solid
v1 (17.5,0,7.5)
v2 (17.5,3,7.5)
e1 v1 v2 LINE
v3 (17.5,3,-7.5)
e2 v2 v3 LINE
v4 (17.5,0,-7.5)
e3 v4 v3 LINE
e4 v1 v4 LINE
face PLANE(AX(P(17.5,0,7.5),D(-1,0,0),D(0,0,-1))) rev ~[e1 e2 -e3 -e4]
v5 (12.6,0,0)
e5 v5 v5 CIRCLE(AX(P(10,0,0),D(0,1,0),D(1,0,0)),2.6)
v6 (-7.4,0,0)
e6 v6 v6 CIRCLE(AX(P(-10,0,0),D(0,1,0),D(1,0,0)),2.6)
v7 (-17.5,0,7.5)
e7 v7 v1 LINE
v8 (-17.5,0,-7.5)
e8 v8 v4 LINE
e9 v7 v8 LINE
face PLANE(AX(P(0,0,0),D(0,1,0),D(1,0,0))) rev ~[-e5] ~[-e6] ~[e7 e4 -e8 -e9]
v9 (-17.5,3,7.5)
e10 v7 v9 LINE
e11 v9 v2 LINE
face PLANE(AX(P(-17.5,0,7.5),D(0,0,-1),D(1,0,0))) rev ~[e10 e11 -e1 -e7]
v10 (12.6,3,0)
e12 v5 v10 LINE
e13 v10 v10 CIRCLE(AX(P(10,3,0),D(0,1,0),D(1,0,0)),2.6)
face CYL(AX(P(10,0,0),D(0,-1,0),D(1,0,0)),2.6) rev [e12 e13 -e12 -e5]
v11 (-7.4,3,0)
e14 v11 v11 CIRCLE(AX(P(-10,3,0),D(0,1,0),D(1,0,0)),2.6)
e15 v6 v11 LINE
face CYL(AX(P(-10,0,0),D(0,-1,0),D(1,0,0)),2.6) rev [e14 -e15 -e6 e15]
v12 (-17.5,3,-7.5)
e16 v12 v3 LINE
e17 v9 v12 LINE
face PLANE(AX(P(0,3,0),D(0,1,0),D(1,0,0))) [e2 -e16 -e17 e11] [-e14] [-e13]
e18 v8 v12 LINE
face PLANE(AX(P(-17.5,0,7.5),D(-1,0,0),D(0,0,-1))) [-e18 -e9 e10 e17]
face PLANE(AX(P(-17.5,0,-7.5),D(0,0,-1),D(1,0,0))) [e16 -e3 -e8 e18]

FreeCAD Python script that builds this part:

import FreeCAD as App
import Part
import Sketcher
from FreeCAD import Vector


def add_polygon(sketch, points):
    """Adds a closed chain of lines whose ends are joined by coincident constraints."""
    first, n = sketch.GeometryCount, len(points)
    for a, b in zip(points, points[1:] + points[:1]):
        sketch.addGeometry(Part.LineSegment(App.Vector(*a, 0), App.Vector(*b, 0)), False)
    for i in range(n):
        sketch.addConstraint(Sketcher.Constraint("Coincident", first + i, 2, first + (i + 1) % n, 1))

doc = App.newDocument("Part")
body = doc.addObject("PartDesign::Body", "Body")

# Sketch on XZ plane
sketch1 = body.newObject("Sketcher::SketchObject", "Sketch")
sketch1.AttachmentSupport = (doc.getObject("XZ_Plane"), [""])
sketch1.MapMode = "FlatFace"
add_polygon(sketch1, [(-17.5, -7.5), (-17.5, 7.5), (17.5, 7.5), (17.5, -7.5)])  # lines 0-3
sketch1.addGeometry(Part.Circle(Vector(-10, 0, 0), Vector(0, 0, 1), 2.6), False)  # 4
sketch1.addGeometry(Part.Circle(Vector(10, 0, 0), Vector(0, 0, 1), 2.6), False)  # 5
sketch1.addConstraint([
    Sketcher.Constraint("Vertical", 0),
    Sketcher.Constraint("Horizontal", 1),
    Sketcher.Constraint("Vertical", 2),
    Sketcher.Constraint("Horizontal", 3),
    Sketcher.Constraint("Equal", 4, 5),
    Sketcher.Constraint("Symmetric", 4, 3, 5, 3, -1, 1),
    Sketcher.Constraint("Symmetric", 0, 2, 2, 2, -1, 1),
    Sketcher.Constraint("PointOnObject", 4, 3, -1),
    Sketcher.Constraint("Diameter", 4, 5.2),
    Sketcher.Constraint("DistanceX", 1, 1, 1, 2, 35.0),
    Sketcher.Constraint("DistanceY", 0, 1, 0, 2, 15.0),
    Sketcher.Constraint("DistanceX", 4, 3, -1, 1, 10.0),
])
pad1 = body.newObject("PartDesign::Pad", "Pad")
pad1.Profile = sketch1
pad1.Length = 3
pad1.Reversed = True

doc.recompute()
